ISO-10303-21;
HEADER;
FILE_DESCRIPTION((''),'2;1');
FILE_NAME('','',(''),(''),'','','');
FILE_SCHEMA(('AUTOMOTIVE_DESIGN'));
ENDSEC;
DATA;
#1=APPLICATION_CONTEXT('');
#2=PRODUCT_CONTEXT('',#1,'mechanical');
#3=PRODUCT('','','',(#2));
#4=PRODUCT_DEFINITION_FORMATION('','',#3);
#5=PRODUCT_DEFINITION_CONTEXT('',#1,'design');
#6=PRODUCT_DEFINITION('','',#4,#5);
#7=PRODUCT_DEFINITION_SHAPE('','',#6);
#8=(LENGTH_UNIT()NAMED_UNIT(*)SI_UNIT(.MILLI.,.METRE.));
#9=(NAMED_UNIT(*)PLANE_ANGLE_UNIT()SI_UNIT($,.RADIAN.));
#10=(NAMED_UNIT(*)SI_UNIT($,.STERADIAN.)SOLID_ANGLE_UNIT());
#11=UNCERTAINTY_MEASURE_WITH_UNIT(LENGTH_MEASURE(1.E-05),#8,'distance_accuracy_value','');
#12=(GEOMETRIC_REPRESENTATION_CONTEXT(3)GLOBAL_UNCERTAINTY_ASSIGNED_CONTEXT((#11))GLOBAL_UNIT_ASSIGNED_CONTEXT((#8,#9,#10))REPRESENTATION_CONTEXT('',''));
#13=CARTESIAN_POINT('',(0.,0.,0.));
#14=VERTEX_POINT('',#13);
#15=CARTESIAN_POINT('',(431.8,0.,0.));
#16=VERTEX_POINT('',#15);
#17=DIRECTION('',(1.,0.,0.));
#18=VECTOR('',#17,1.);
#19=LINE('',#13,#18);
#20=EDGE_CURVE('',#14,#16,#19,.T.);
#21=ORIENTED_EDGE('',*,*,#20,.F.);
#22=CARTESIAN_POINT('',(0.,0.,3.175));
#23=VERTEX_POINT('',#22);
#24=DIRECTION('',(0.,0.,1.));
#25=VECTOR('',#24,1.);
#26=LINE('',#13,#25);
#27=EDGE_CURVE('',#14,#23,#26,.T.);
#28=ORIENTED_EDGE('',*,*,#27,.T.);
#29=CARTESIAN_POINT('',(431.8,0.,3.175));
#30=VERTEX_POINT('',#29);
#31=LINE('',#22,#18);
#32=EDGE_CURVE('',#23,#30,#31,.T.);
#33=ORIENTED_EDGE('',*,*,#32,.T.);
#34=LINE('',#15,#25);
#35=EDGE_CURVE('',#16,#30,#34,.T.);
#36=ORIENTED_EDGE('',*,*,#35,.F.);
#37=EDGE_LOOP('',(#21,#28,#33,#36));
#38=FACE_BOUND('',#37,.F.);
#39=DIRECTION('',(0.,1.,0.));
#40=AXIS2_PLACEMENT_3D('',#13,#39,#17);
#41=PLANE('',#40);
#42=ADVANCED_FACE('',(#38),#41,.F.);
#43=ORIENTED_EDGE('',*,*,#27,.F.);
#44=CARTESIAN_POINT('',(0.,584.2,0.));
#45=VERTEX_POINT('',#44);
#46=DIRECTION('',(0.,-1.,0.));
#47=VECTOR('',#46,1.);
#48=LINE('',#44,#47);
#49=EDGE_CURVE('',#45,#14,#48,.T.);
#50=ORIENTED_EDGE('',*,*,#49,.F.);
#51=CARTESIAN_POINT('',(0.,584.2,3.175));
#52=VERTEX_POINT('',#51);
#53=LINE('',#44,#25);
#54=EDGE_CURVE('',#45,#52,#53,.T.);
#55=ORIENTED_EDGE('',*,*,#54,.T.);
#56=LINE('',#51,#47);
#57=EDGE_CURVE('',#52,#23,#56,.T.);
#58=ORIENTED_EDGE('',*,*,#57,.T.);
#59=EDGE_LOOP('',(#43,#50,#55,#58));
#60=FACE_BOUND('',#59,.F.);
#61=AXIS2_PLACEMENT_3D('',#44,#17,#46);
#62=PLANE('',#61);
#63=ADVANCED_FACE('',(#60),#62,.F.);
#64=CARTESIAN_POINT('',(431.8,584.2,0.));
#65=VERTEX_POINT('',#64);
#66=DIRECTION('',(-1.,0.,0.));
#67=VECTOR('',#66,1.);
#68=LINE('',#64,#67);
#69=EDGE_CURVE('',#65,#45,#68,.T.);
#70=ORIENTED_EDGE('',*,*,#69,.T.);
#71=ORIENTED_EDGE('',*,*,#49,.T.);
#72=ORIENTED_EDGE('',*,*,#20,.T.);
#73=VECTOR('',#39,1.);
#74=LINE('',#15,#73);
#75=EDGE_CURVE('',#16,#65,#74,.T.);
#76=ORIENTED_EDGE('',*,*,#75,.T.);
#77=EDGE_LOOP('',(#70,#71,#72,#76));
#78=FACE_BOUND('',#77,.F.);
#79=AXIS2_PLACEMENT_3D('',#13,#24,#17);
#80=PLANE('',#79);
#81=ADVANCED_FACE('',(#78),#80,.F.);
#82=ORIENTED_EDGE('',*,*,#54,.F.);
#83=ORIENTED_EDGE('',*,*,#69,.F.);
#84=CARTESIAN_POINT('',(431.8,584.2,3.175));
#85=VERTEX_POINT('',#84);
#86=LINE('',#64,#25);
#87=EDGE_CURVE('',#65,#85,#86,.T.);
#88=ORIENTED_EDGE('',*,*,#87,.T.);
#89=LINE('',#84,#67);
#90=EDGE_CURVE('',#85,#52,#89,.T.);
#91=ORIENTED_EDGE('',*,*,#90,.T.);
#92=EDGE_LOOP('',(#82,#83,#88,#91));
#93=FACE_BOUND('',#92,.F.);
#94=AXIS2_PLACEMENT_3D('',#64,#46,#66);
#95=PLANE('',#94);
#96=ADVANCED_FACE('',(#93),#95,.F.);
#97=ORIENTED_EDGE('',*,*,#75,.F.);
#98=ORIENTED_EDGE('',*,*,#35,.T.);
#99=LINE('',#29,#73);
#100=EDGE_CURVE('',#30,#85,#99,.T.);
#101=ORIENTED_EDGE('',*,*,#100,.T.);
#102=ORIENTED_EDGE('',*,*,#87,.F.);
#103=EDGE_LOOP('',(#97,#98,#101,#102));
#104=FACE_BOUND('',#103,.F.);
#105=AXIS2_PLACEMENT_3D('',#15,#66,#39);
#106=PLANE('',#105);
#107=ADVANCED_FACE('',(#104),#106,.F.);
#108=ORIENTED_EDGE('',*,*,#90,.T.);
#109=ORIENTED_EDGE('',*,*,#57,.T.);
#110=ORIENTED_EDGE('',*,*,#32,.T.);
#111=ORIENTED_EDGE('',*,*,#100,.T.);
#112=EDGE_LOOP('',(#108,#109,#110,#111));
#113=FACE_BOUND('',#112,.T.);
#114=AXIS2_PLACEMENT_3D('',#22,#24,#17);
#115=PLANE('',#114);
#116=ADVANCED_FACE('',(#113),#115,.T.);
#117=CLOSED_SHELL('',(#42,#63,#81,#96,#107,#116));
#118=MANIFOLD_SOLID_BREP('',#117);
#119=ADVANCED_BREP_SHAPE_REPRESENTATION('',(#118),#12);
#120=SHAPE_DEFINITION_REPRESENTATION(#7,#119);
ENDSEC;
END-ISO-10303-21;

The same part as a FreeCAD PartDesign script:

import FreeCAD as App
import Part
import Sketcher

V = App.Vector
Q = App.Units.Quantity

doc = App.newDocument("Part")
params = doc.addObject("Spreadsheet::Sheet", "Params")
for row, (alias, value) in enumerate([
    ("sketch1_width", "17 in"),
    ("sketch1_height", "23 in"),
    ("pad1_length", "0.125 in"),
], start=1):
    params.set(f"A{row}", alias)
    params.set(f"B{row}", "=" + value)
    params.setAlias(f"B{row}", alias)

body = doc.addObject("PartDesign::Body", "Body")

# Sketch on XY plane
sketch1 = body.newObject("Sketcher::SketchObject", "Sketch")
sketch1.AttachmentSupport = (doc.getObject("XY_Plane"), [""])
sketch1.MapMode = "FlatFace"
sketch1.addGeometry([
    Part.LineSegment(V(0, 584, 0), V(0, 0, 0)),
    Part.LineSegment(V(0, 0, 0), V(432, 0, 0)),
    Part.LineSegment(V(432, 0, 0), V(432, 584, 0)),
    Part.LineSegment(V(432, 584, 0), V(0, 584, 0)),
], False)
sketch1.addConstraint([
    Sketcher.Constraint("Coincident", 0, 2, 1, 1),
    Sketcher.Constraint("Coincident", 1, 2, 2, 1),
    Sketcher.Constraint("Coincident", 2, 2, 3, 1),
    Sketcher.Constraint("Coincident", 3, 2, 0, 1),
    Sketcher.Constraint("Vertical", 0),
    Sketcher.Constraint("Horizontal", 1),
    Sketcher.Constraint("Vertical", 2),
    Sketcher.Constraint("Horizontal", 3),
    Sketcher.Constraint("Coincident", 0, 2, -1, 1),
    Sketcher.Constraint("DistanceX", 1, 1, 1, 2, Q("17 in")),
    Sketcher.Constraint("DistanceY", 0, 2, 0, 1, Q("23 in")),
])
sketch1.setExpression("Constraints[9]", "Params.sketch1_width")
sketch1.setExpression("Constraints[10]", "Params.sketch1_height")
pad1 = body.newObject("PartDesign::Pad", "Pad")
pad1.Profile = sketch1
pad1.setExpression("Length", "Params.pad1_length")

doc.recompute()
